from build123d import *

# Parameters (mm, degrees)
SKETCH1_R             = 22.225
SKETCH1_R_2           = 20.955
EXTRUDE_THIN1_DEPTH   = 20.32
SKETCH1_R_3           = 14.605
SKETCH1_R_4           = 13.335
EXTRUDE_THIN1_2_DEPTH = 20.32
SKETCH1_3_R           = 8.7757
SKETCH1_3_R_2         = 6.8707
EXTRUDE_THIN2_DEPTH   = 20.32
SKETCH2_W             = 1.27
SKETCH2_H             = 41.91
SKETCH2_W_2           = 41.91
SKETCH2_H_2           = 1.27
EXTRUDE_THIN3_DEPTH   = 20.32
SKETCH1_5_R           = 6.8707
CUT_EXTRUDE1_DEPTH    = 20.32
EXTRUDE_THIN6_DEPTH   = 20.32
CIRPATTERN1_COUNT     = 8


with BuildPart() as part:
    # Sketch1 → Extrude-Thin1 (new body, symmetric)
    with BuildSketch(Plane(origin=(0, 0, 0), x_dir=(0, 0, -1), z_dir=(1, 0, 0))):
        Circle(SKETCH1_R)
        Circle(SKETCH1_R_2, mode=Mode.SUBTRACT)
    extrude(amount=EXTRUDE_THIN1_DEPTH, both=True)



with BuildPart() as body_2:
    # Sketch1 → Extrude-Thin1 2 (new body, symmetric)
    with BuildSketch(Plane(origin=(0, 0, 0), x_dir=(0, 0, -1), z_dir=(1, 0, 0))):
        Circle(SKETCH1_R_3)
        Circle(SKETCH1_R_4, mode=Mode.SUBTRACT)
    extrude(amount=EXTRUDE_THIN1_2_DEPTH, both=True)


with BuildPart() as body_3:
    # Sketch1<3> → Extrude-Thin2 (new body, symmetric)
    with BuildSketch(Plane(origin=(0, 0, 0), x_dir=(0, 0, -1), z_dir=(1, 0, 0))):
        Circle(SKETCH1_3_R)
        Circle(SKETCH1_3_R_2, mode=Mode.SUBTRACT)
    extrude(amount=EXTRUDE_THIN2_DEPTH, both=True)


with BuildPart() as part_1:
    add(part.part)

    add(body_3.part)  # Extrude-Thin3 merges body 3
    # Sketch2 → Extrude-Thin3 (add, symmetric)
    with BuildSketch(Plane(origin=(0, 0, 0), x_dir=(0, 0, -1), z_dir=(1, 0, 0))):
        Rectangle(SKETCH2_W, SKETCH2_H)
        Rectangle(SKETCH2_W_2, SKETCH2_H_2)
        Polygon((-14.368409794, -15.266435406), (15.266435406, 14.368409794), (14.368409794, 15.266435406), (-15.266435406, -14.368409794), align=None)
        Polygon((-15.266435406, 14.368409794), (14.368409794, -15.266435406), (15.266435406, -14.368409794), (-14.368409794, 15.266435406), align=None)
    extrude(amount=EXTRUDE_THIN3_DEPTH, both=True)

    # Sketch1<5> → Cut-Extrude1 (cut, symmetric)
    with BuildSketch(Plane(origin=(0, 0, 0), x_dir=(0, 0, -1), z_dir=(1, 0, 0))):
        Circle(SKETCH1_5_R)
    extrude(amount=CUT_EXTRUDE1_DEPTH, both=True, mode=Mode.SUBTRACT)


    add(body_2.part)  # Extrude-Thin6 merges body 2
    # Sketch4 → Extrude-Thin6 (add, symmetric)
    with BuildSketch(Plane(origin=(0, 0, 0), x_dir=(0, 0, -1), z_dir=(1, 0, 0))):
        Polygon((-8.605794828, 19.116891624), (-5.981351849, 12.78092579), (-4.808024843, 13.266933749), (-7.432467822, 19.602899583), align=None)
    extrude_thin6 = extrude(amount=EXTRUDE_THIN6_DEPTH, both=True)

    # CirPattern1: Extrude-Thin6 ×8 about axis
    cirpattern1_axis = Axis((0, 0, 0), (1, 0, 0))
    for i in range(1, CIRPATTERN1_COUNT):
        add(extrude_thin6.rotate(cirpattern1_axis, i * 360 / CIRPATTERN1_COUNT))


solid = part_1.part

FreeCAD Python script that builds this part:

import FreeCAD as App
import Part
import Sketcher

V = App.Vector
Q = App.Units.Quantity


def add_polygon(sketch, points):
    """Adds a closed chain of lines whose ends are joined by coincident constraints."""
    first, n = sketch.GeometryCount, len(points)
    for a, b in zip(points, points[1:] + points[:1]):
        sketch.addGeometry(Part.LineSegment(App.Vector(*a, 0), App.Vector(*b, 0)), False)
    for i in range(n):
        sketch.addConstraint(Sketcher.Constraint("Coincident", first + i, 2, first + (i + 1) % n, 1))

doc = App.newDocument("Part")
params = doc.addObject("Spreadsheet::Sheet", "Params")
for row, (alias, value) in enumerate([
    ("sketch1_diameter", "1.75 in"),
    ("sketch1_diameter2", "1.65 in"),
    ("pad1_length", "1.6 in"),
    ("sketch2_diameter", "1.15 in"),
    ("sketch2_diameter2", "1.05 in"),
    ("pad2_length", "1.6 in"),
    ("sketch3_diameter", "0.691 in"),
    ("sketch3_diameter2", "0.541 in"),
    ("pad3_length", "1.6 in"),
    ("sketch4_width", "0.05 in"),
    ("sketch4_length", "0.05 in"),
    ("pad4_length", "1.6 in"),
    ("sketch5_diameter", "0.541 in"),
    ("pocket1_length", "1.6 in"),
    ("sketch6_length", "0.27 in"),
    ("sketch6_length2", "0.05 in"),
    ("pad5_length", "1.6 in"),
], start=1):
    params.set(f"A{row}", alias)
    params.set(f"B{row}", "=" + value)
    params.setAlias(f"B{row}", alias)

body = doc.addObject("PartDesign::Body", "Body")

# Sketch on YZ plane
sketch1 = body.newObject("Sketcher::SketchObject", "Sketch")
sketch1.AttachmentSupport = (doc.getObject("YZ_Plane"), [""])
sketch1.MapMode = "FlatFace"
sketch1.addGeometry(Part.Circle(V(0, 0, 0), V(0, 0, 1), 22), False)
sketch1.addGeometry(Part.Circle(V(0, 0, 0), V(0, 0, 1), 21), False)
sketch1.addConstraint(Sketcher.Constraint("Coincident", 0, 3, -1, 1))
sketch1.addConstraint(Sketcher.Constraint("Coincident", 1, 3, -1, 1))
sketch1.addConstraint(Sketcher.Constraint("Diameter", 0, Q("1.75 in")))
sketch1.addConstraint(Sketcher.Constraint("Diameter", 1, Q("1.65 in")))
sketch1.setExpression("Constraints[2]", "Params.sketch1_diameter")
sketch1.setExpression("Constraints[3]", "Params.sketch1_diameter2")
pad1 = body.newObject("PartDesign::Pad", "Pad")
pad1.Profile = sketch1
pad1.setExpression("Length", "Params.pad1_length")
pad1.Midplane = True
body2 = doc.addObject("PartDesign::Body", "Body001")

# Sketch on YZ plane
sketch2 = body2.newObject("Sketcher::SketchObject", "Sketch001")
sketch2.AttachmentSupport = (doc.getObject("YZ_Plane001"), [""])
sketch2.MapMode = "FlatFace"
sketch2.addGeometry(Part.Circle(V(0, 0, 0), V(0, 0, 1), 15), False)
sketch2.addGeometry(Part.Circle(V(0, 0, 0), V(0, 0, 1), 13), False)
sketch2.addConstraint(Sketcher.Constraint("Coincident", 0, 3, -1, 1))
sketch2.addConstraint(Sketcher.Constraint("Coincident", 1, 3, -1, 1))
sketch2.addConstraint(Sketcher.Constraint("Diameter", 0, Q("1.15 in")))
sketch2.addConstraint(Sketcher.Constraint("Diameter", 1, Q("1.05 in")))
sketch2.setExpression("Constraints[2]", "Params.sketch2_diameter")
sketch2.setExpression("Constraints[3]", "Params.sketch2_diameter2")
pad2 = body2.newObject("PartDesign::Pad", "Pad001")
pad2.Profile = sketch2
pad2.setExpression("Length", "Params.pad2_length")
pad2.Midplane = True
body3 = doc.addObject("PartDesign::Body", "Body002")

# Sketch on YZ plane
sketch3 = body3.newObject("Sketcher::SketchObject", "Sketch002")
sketch3.AttachmentSupport = (doc.getObject("YZ_Plane002"), [""])
sketch3.MapMode = "FlatFace"
sketch3.addGeometry(Part.Circle(V(0, 0, 0), V(0, 0, 1), 9), False)
sketch3.addGeometry(Part.Circle(V(0, 0, 0), V(0, 0, 1), 7), False)
sketch3.addConstraint(Sketcher.Constraint("Coincident", 0, 3, -1, 1))
sketch3.addConstraint(Sketcher.Constraint("Coincident", 1, 3, -1, 1))
sketch3.addConstraint(Sketcher.Constraint("Diameter", 0, Q("0.691 in")))
sketch3.addConstraint(Sketcher.Constraint("Diameter", 1, Q("0.541 in")))
sketch3.setExpression("Constraints[2]", "Params.sketch3_diameter")
sketch3.setExpression("Constraints[3]", "Params.sketch3_diameter2")
pad3 = body3.newObject("PartDesign::Pad", "Pad002")
pad3.Profile = sketch3
pad3.setExpression("Length", "Params.pad3_length")
pad3.Midplane = True
body.AllowCompound = True
doc.recompute()

boolean = body.newObject("PartDesign::Boolean", "Boolean")
boolean.Type = "Fuse"
boolean.addObjects([body3])

# Sketch on YZ plane
sketch4 = body.newObject("Sketcher::SketchObject", "Sketch003")
sketch4.AttachmentSupport = (doc.getObject("YZ_Plane"), [""])
sketch4.MapMode = "FlatFace"
add_polygon(sketch4, [(-1.5, 0.6), (-21, 0.6), (-21, -0.6), (-1.5, -0.6), (-15.3, -14.4), (-14.4, -15.3), (-0.6, -1.5), (-0.6, -21), (0.6, -21), (0.6, -1.5), (14.4, -15.3), (15.3, -14.4), (1.5, -0.6), (21, -0.6), (21, 0.6), (1.5, 0.6), (15.3, 14.4), (14.4, 15.3), (0.6, 1.5), (0.6, 21), (-0.6, 21), (-0.6, 1.5), (-14.4, 15.3), (-15.3, 14.4)])  # lines 0-23
sketch4.addConstraint(Sketcher.Constraint("Horizontal", 0))
sketch4.addConstraint(Sketcher.Constraint("Vertical", 1))
sketch4.addConstraint(Sketcher.Constraint("Horizontal", 2))
sketch4.addConstraint(Sketcher.Constraint("Vertical", 6))
sketch4.addConstraint(Sketcher.Constraint("Horizontal", 7))
sketch4.addConstraint(Sketcher.Constraint("Vertical", 8))
sketch4.addConstraint(Sketcher.Constraint("Horizontal", 12))
sketch4.addConstraint(Sketcher.Constraint("Vertical", 13))
sketch4.addConstraint(Sketcher.Constraint("Horizontal", 14))
sketch4.addConstraint(Sketcher.Constraint("Vertical", 18))
sketch4.addConstraint(Sketcher.Constraint("Horizontal", 19))
sketch4.addConstraint(Sketcher.Constraint("Vertical", 20))
sketch4.addConstraint(Sketcher.Constraint("Symmetric", 0, 2, 12, 2, -1, 1))
sketch4.addConstraint(Sketcher.Constraint("Symmetric", 2, 2, 14, 2, -1, 1))
sketch4.addConstraint(Sketcher.Constraint("Symmetric", 3, 2, 15, 2, -1, 1))
sketch4.addConstraint(Sketcher.Constraint("Symmetric", 4, 2, 16, 2, -1, 1))
sketch4.addConstraint(Sketcher.Constraint("Symmetric", 5, 2, 17, 2, -1, 1))
sketch4.addConstraint(Sketcher.Constraint("Symmetric", 7, 2, 19, 2, -1, 1))
sketch4.addConstraint(Sketcher.Constraint("Symmetric", 9, 2, 21, 2, -1, 1))
sketch4.addConstraint(Sketcher.Constraint("Symmetric", 10, 2, 22, 2, -1, 1))
sketch4.addConstraint(Sketcher.Constraint("Symmetric", 5, 2, 8, 2, -2))
sketch4.addConstraint(Sketcher.Constraint("Symmetric", 4, 2, 9, 2, -2))
sketch4.addConstraint(Sketcher.Constraint("Symmetric", 3, 2, 10, 2, -2))
sketch4.addConstraint(Sketcher.Constraint("Symmetric", 2, 2, 11, 2, -2))
sketch4.addConstraint(Sketcher.Constraint("Perpendicular", 3, 4))
sketch4.addConstraint(Sketcher.Constraint("Perpendicular", 4, 5))
sketch4.addConstraint(Sketcher.Constraint("Perpendicular", 5, 9))
sketch4.addConstraint(Sketcher.Constraint("Perpendicular", 17, 21))
sketch4.addConstraint(Sketcher.Constraint("Perpendicular", 22, 23))
sketch4.addConstraint(Sketcher.Constraint("Equal", 19, 1))
sketch4.addConstraint(Sketcher.Constraint("Equal", 14, 6))
sketch4.addConstraint(Sketcher.Constraint("Equal", 3, 5))
sketch4.addConstraint(Sketcher.Constraint("DistanceX", 7, 1, 7, 2, Q("0.05 in")))
sketch4.addConstraint(Sketcher.Constraint("DistanceX", 1, 2, 5, 2, Q("0.8 in")))
sketch4.addConstraint(Sketcher.Constraint("Distance", 4, Q("0.05 in")))
sketch4.addConstraint(Sketcher.Constraint("DistanceY", 3, 2, -1, 1, Q("14.36841 mm")))
sketch4.setExpression("Constraints[56]", "Params.sketch4_width")
sketch4.setExpression("Constraints[58]", "Params.sketch4_length")
pad4 = body.newObject("PartDesign::Pad", "Pad003")
pad4.Profile = sketch4
pad4.setExpression("Length", "Params.pad4_length")
pad4.Midplane = True

# Sketch on YZ plane
sketch5 = body.newObject("Sketcher::SketchObject", "Sketch004")
sketch5.AttachmentSupport = (doc.getObject("YZ_Plane"), [""])
sketch5.MapMode = "FlatFace"
sketch5.addGeometry(Part.Circle(V(0, 0, 0), V(0, 0, 1), 7), False)
sketch5.addConstraint(Sketcher.Constraint("Coincident", 0, 3, -1, 1))
sketch5.addConstraint(Sketcher.Constraint("Diameter", 0, Q("0.541 in")))
sketch5.setExpression("Constraints[1]", "Params.sketch5_diameter")
pocket1 = body.newObject("PartDesign::Pocket", "Pocket")
pocket1.Profile = sketch5
pocket1.setExpression("Length", "Params.pocket1_length")
pocket1.Midplane = True
doc.recompute()

boolean2 = body.newObject("PartDesign::Boolean", "Boolean001")
boolean2.Type = "Fuse"
boolean2.addObjects([body2])

# Sketch on YZ plane
sketch6 = body.newObject("Sketcher::SketchObject", "Sketch005")
sketch6.AttachmentSupport = (doc.getObject("YZ_Plane"), [""])
sketch6.MapMode = "FlatFace"
add_polygon(sketch6, [(19.1, 8.6), (12.8, 6), (13.3, 4.8), (19.6, 7.4)])  # lines 0-3
sketch6.addConstraint(Sketcher.Constraint("Perpendicular", 0, 1))
sketch6.addConstraint(Sketcher.Constraint("Perpendicular", 1, 2))
sketch6.addConstraint(Sketcher.Constraint("Perpendicular", 2, 3))
sketch6.addConstraint(Sketcher.Constraint("Angle", 0, Q("-157.5 deg")))
sketch6.addConstraint(Sketcher.Constraint("Distance", 0, Q("0.27 in")))
sketch6.addConstraint(Sketcher.Constraint("Distance", 1, Q("0.05 in")))
sketch6.addConstraint(Sketcher.Constraint("DistanceX", -1, 1, 2, 2, Q("19.6029 mm")))
sketch6.addConstraint(Sketcher.Constraint("DistanceY", -1, 1, 0, 2, Q("5.981352 mm")))
sketch6.setExpression("Constraints[8]", "Params.sketch6_length")
sketch6.setExpression("Constraints[9]", "Params.sketch6_length2")
pad5 = body.newObject("PartDesign::Pad", "Pad004")
pad5.Profile = sketch6
pad5.setExpression("Length", "Params.pad5_length")
pad5.Midplane = True
doc.recompute()

polarpattern = body.newObject("PartDesign::PolarPattern", "PolarPattern")
polarpattern.Originals = [pad5]
polarpattern.Axis = (doc.getObject("X_Axis"), [""])
polarpattern.Angle = 360
polarpattern.Occurrences = 8
body.Tip = polarpattern

doc.recompute()
